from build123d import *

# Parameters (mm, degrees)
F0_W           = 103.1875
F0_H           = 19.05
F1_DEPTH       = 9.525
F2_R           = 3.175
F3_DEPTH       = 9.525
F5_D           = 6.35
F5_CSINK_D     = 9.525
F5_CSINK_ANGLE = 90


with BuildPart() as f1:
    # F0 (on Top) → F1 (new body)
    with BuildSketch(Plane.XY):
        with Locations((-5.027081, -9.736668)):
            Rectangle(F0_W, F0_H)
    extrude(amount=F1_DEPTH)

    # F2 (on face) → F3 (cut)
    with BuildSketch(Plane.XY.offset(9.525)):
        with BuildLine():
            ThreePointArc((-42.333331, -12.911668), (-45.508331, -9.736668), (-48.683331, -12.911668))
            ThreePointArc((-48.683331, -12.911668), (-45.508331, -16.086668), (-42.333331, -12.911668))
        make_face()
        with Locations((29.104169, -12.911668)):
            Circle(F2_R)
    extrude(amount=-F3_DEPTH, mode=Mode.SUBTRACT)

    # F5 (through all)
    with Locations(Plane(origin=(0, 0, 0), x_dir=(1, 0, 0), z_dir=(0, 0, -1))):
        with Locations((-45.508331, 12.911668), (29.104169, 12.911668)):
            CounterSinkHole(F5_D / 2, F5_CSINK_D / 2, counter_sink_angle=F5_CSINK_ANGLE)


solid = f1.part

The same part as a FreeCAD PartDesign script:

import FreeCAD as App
import Part
import Sketcher
Q = App.Units.Quantity

doc = App.newDocument("Part")
params = doc.addObject("Spreadsheet::Sheet", "Params")
for row, (alias, value) in enumerate([
    ("sketch1_height", "0.75 in"),
    ("sketch1_width", "4.0625 in"),
    ("pad1_length", "0.375 in"),
    ("sketch2_diameter", "0.25 in"),
    ("pocket1_length", "0.375 in"),
    ("sketch3_diameter", "0.25 in"),
    ("hole_diameter", "0.25 in"),
    ("hole_csink_diameter", "0.375 in"),
], start=1):
    params.set(f"A{row}", alias)
    params.set(f"B{row}", "=" + value)
    params.setAlias(f"B{row}", alias)

body = doc.addObject("PartDesign::Body", "Body")

sketch1 = body.newObject("Sketcher::SketchObject", "Sketch")
sketch1.AttachmentSupport = (doc.getObject("XY_Plane"), [""])
sketch1.MapMode = "FlatFace"
sketch1.addGeometry(Part.LineSegment(App.Vector(-56.620831, -0.211668, 0), App.Vector(-56.620831, -19.261668, 0)), False)
sketch1.addGeometry(Part.LineSegment(App.Vector(-56.620831, -19.261668, 0), App.Vector(46.566669, -19.261668, 0)), False)
sketch1.addGeometry(Part.LineSegment(App.Vector(46.566669, -19.261668, 0), App.Vector(46.566669, -0.211668, 0)), False)
sketch1.addGeometry(Part.LineSegment(App.Vector(46.566669, -0.211668, 0), App.Vector(-56.620831, -0.211668, 0)), False)
sketch1.addConstraint(Sketcher.Constraint("Coincident", 0, 2, 1, 1))
sketch1.addConstraint(Sketcher.Constraint("Coincident", 1, 2, 2, 1))
sketch1.addConstraint(Sketcher.Constraint("Coincident", 2, 2, 3, 1))
sketch1.addConstraint(Sketcher.Constraint("Coincident", 3, 2, 0, 1))
sketch1.addConstraint(Sketcher.Constraint("Vertical", 0))
sketch1.addConstraint(Sketcher.Constraint("Horizontal", 1))
sketch1.addConstraint(Sketcher.Constraint("Vertical", 2))
sketch1.addConstraint(Sketcher.Constraint("Horizontal", 3))
sketch1.addConstraint(Sketcher.Constraint("DistanceY", 0, 2, 0, 1, Q("0.75 in")))
sketch1.addConstraint(Sketcher.Constraint("DistanceX", 1, 1, 1, 2, Q("4.0625 in")))
sketch1.addConstraint(Sketcher.Constraint("DistanceX", 0, 2, -1, 1, 56.620831))
sketch1.addConstraint(Sketcher.Constraint("DistanceY", 0, 2, -1, 1, 19.261668))
sketch1.setExpression("Constraints[8]", "Params.sketch1_height")
sketch1.setExpression("Constraints[9]", "Params.sketch1_width")
pad1 = body.newObject("PartDesign::Pad", "Pad")
pad1.Profile = sketch1
pad1.setExpression("Length", "Params.pad1_length")

sketch2 = body.newObject("Sketcher::SketchObject", "Sketch001")
sketch2.AttachmentSupport = (doc.getObject("XY_Plane"), [""])
sketch2.MapMode = "FlatFace"
sketch2.AttachmentOffset = App.Placement(App.Vector(0, 0, 0.375 * 25.4), App.Rotation())
sketch2.addGeometry(Part.Circle(App.Vector(-45.508331, -12.911668, 0), App.Vector(0, 0, 1), 3.175), False)
sketch2.addGeometry(Part.Circle(App.Vector(29.104169, -12.911668, 0), App.Vector(0, 0, 1), 3.175), False)
sketch2.addConstraint(Sketcher.Constraint("Equal", 0, 1))
sketch2.addConstraint(Sketcher.Constraint("Horizontal", 0, 3, 1, 3))
sketch2.addConstraint(Sketcher.Constraint("Diameter", 0, Q("0.25 in")))
sketch2.addConstraint(Sketcher.Constraint("DistanceX", 0, 3, 1, 3, Q("2.9375 in")))
sketch2.addConstraint(Sketcher.Constraint("DistanceX", 0, 3, -1, 1, 45.508331))
sketch2.addConstraint(Sketcher.Constraint("DistanceY", 0, 3, -1, 1, 12.911668))
sketch2.setExpression("Constraints[2]", "Params.sketch2_diameter")
pocket1 = body.newObject("PartDesign::Pocket", "Pocket")
pocket1.Profile = sketch2
pocket1.setExpression("Length", "Params.pocket1_length")

sketch3 = body.newObject("Sketcher::SketchObject", "Sketch002")
sketch3.AttachmentSupport = (doc.getObject("XY_Plane"), [""])
sketch3.MapMode = "FlatFace"
sketch3.addGeometry(Part.Circle(App.Vector(-45.508331, -12.911668, 0), App.Vector(0, 0, 1), 3.175), False)
sketch3.addGeometry(Part.Circle(App.Vector(29.104169, -12.911668, 0), App.Vector(0, 0, 1), 3.175), False)
sketch3.addConstraint(Sketcher.Constraint("Equal", 0, 1))
sketch3.addConstraint(Sketcher.Constraint("Horizontal", 0, 3, 1, 3))
sketch3.addConstraint(Sketcher.Constraint("Diameter", 0, Q("0.25 in")))
sketch3.addConstraint(Sketcher.Constraint("DistanceX", 0, 3, 1, 3, Q("2.9375 in")))
sketch3.addConstraint(Sketcher.Constraint("DistanceX", 0, 3, -1, 1, 45.508331))
sketch3.addConstraint(Sketcher.Constraint("DistanceY", 0, 3, -1, 1, 12.911668))
sketch3.setExpression("Constraints[2]", "Params.sketch3_diameter")
doc.recompute()
hole = body.newObject("PartDesign::Hole", "Hole")
hole.Profile = sketch3
hole.ThreadType = "None"
hole.setExpression("Diameter", "Params.hole_diameter")
hole.DepthType = "ThroughAll"
hole.HoleCutType = "Countersink"
hole.setExpression("HoleCutDiameter", "Params.hole_csink_diameter")
hole.HoleCutCountersinkAngle = 90
hole.Reversed = True

doc.recompute()
